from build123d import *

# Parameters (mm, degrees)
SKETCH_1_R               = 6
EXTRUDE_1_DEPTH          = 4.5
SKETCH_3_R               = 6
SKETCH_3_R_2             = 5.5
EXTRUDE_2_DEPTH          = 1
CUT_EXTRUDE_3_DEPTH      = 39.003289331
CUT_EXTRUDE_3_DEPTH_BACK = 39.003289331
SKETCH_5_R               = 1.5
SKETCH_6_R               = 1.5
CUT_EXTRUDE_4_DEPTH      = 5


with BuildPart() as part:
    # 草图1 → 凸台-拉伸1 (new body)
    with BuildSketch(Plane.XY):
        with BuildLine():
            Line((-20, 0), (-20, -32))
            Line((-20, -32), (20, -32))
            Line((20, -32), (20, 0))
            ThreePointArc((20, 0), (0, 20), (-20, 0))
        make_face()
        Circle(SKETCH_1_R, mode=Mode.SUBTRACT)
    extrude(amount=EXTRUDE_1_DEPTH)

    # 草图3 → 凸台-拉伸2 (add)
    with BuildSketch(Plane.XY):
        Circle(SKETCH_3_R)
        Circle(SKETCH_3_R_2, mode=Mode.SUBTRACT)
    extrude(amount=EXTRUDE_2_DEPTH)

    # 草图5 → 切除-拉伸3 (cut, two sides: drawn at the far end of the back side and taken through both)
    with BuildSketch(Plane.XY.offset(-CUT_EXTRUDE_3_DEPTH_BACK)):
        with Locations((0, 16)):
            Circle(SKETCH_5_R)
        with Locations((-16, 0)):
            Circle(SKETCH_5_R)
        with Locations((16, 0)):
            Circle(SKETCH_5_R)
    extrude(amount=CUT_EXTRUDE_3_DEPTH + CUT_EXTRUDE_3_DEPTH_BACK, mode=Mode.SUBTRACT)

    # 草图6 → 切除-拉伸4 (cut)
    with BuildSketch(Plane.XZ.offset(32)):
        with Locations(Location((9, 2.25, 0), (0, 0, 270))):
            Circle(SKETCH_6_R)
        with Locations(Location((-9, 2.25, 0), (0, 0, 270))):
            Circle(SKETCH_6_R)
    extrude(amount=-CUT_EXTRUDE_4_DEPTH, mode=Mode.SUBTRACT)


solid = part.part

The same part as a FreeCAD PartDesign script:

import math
import FreeCAD as App
import Part
import Sketcher
from FreeCAD import Vector
Q = App.Units.Quantity

doc = App.newDocument("Part")
body = doc.addObject("PartDesign::Body", "Body")

# Sketch on XY plane
sketch1 = body.newObject("Sketcher::SketchObject", "Sketch")
sketch1.AttachmentSupport = (doc.getObject("XY_Plane"), [""])
sketch1.MapMode = "FlatFace"
sketch1.addGeometry([
    Part.LineSegment(Vector(-20, 0, 0), Vector(-20, -32, 0)),  # 0
    Part.LineSegment(Vector(-20, -32, 0), Vector(20, -32, 0)),  # 1
    Part.LineSegment(Vector(20, -32, 0), Vector(20, 0, 0)),  # 2
    Part.ArcOfCircle(Part.Circle(Vector(0, 0, 0), Vector(0, 0, 1), 20), math.radians(0), math.radians(180)),  # 3
    Part.Circle(Vector(0, 0, 0), Vector(0, 0, 1), 6),  # 4
], False)
sketch1.addConstraint([
    Sketcher.Constraint("Coincident", 0, 2, 1, 1),
    Sketcher.Constraint("Coincident", 1, 2, 2, 1),
    Sketcher.Constraint("Tangent", 2, 2, 3, 1),
    Sketcher.Constraint("Tangent", 3, 2, 0, 1),
    Sketcher.Constraint("Vertical", 0),
    Sketcher.Constraint("Horizontal", 1),
    Sketcher.Constraint("Vertical", 2),
    Sketcher.Constraint("Coincident", 3, 3, -1, 1),
    Sketcher.Constraint("Coincident", 4, 3, -1, 1),
    Sketcher.Constraint("Diameter", 4, Q("12 mm")),
    Sketcher.Constraint("Radius", 3, Q("20 mm")),
    Sketcher.Constraint("DistanceY", 0, 2, 0, 1, Q("32 mm")),
])
pad1 = body.newObject("PartDesign::Pad", "Pad")
pad1.Profile = sketch1
pad1.Length = 4.5

# Sketch on XY plane
sketch2 = body.newObject("Sketcher::SketchObject", "Sketch001")
sketch2.AttachmentSupport = (doc.getObject("XY_Plane"), [""])
sketch2.MapMode = "FlatFace"
sketch2.addGeometry([
    Part.Circle(Vector(0, 0, 0), Vector(0, 0, 1), 6),
    Part.Circle(Vector(0, 0, 0), Vector(0, 0, 1), 5.5),
], False)
sketch2.addConstraint([
    Sketcher.Constraint("Coincident", 0, 3, -1, 1),
    Sketcher.Constraint("Coincident", 1, 3, -1, 1),
    Sketcher.Constraint("Diameter", 0, Q("12 mm")),
    Sketcher.Constraint("Diameter", 1, Q("11 mm")),
])
pad2 = body.newObject("PartDesign::Pad", "Pad001")
pad2.Profile = sketch2
pad2.Length = 1

# Sketch on XY plane
sketch3 = body.newObject("Sketcher::SketchObject", "Sketch002")
sketch3.AttachmentSupport = (doc.getObject("XY_Plane"), [""])
sketch3.MapMode = "FlatFace"
sketch3.addGeometry([
    Part.Circle(Vector(0, 16, 0), Vector(0, 0, 1), 1.5),
    Part.Circle(Vector(-16, 0, 0), Vector(0, 0, 1), 1.5),
    Part.Circle(Vector(16, 0, 0), Vector(0, 0, 1), 1.5),
], False)
sketch3.addConstraint([
    Sketcher.Constraint("Equal", 0, 1),
    Sketcher.Constraint("Equal", 1, 2),
    Sketcher.Constraint("Symmetric", 1, 3, 2, 3, -1, 1),
    Sketcher.Constraint("PointOnObject", 0, 3, -2),
    Sketcher.Constraint("PointOnObject", 1, 3, -1),
    Sketcher.Constraint("Diameter", 0, Q("3 mm")),
    Sketcher.Constraint("DistanceY", -1, 1, 0, 3, Q("16 mm")),
    Sketcher.Constraint("DistanceX", 1, 3, -1, 1, Q("16 mm")),
])
pocket1 = body.newObject("PartDesign::Pocket", "Pocket")
pocket1.Profile = sketch3
pocket1.Type = "ThroughAll"
pocket1.Midplane = True

# Sketch on XZ plane
sketch4 = body.newObject("Sketcher::SketchObject", "Sketch003")
sketch4.AttachmentSupport = (doc.getObject("XZ_Plane"), [""])
sketch4.MapMode = "FlatFace"
sketch4.AttachmentOffset = App.Placement(Vector(0, 0, 32), App.Rotation())
sketch4.addGeometry([
    Part.Circle(Vector(9, 2.25, 0), Vector(0, 0, 1), 1.5),
    Part.Circle(Vector(-9, 2.25, 0), Vector(0, 0, 1), 1.5),
], False)
sketch4.addConstraint([
    Sketcher.Constraint("Equal", 0, 1),
    Sketcher.Constraint("Symmetric", 0, 3, 1, 3, -2),
    Sketcher.Constraint("Diameter", 0, Q("3 mm")),
    Sketcher.Constraint("DistanceX", -1, 1, 0, 3, Q("9 mm")),
    Sketcher.Constraint("DistanceY", -1, 1, 0, 3, Q("2.25 mm")),
])
pocket2 = body.newObject("PartDesign::Pocket", "Pocket001")
pocket2.Profile = sketch4
pocket2.Length = 5

doc.recompute()
